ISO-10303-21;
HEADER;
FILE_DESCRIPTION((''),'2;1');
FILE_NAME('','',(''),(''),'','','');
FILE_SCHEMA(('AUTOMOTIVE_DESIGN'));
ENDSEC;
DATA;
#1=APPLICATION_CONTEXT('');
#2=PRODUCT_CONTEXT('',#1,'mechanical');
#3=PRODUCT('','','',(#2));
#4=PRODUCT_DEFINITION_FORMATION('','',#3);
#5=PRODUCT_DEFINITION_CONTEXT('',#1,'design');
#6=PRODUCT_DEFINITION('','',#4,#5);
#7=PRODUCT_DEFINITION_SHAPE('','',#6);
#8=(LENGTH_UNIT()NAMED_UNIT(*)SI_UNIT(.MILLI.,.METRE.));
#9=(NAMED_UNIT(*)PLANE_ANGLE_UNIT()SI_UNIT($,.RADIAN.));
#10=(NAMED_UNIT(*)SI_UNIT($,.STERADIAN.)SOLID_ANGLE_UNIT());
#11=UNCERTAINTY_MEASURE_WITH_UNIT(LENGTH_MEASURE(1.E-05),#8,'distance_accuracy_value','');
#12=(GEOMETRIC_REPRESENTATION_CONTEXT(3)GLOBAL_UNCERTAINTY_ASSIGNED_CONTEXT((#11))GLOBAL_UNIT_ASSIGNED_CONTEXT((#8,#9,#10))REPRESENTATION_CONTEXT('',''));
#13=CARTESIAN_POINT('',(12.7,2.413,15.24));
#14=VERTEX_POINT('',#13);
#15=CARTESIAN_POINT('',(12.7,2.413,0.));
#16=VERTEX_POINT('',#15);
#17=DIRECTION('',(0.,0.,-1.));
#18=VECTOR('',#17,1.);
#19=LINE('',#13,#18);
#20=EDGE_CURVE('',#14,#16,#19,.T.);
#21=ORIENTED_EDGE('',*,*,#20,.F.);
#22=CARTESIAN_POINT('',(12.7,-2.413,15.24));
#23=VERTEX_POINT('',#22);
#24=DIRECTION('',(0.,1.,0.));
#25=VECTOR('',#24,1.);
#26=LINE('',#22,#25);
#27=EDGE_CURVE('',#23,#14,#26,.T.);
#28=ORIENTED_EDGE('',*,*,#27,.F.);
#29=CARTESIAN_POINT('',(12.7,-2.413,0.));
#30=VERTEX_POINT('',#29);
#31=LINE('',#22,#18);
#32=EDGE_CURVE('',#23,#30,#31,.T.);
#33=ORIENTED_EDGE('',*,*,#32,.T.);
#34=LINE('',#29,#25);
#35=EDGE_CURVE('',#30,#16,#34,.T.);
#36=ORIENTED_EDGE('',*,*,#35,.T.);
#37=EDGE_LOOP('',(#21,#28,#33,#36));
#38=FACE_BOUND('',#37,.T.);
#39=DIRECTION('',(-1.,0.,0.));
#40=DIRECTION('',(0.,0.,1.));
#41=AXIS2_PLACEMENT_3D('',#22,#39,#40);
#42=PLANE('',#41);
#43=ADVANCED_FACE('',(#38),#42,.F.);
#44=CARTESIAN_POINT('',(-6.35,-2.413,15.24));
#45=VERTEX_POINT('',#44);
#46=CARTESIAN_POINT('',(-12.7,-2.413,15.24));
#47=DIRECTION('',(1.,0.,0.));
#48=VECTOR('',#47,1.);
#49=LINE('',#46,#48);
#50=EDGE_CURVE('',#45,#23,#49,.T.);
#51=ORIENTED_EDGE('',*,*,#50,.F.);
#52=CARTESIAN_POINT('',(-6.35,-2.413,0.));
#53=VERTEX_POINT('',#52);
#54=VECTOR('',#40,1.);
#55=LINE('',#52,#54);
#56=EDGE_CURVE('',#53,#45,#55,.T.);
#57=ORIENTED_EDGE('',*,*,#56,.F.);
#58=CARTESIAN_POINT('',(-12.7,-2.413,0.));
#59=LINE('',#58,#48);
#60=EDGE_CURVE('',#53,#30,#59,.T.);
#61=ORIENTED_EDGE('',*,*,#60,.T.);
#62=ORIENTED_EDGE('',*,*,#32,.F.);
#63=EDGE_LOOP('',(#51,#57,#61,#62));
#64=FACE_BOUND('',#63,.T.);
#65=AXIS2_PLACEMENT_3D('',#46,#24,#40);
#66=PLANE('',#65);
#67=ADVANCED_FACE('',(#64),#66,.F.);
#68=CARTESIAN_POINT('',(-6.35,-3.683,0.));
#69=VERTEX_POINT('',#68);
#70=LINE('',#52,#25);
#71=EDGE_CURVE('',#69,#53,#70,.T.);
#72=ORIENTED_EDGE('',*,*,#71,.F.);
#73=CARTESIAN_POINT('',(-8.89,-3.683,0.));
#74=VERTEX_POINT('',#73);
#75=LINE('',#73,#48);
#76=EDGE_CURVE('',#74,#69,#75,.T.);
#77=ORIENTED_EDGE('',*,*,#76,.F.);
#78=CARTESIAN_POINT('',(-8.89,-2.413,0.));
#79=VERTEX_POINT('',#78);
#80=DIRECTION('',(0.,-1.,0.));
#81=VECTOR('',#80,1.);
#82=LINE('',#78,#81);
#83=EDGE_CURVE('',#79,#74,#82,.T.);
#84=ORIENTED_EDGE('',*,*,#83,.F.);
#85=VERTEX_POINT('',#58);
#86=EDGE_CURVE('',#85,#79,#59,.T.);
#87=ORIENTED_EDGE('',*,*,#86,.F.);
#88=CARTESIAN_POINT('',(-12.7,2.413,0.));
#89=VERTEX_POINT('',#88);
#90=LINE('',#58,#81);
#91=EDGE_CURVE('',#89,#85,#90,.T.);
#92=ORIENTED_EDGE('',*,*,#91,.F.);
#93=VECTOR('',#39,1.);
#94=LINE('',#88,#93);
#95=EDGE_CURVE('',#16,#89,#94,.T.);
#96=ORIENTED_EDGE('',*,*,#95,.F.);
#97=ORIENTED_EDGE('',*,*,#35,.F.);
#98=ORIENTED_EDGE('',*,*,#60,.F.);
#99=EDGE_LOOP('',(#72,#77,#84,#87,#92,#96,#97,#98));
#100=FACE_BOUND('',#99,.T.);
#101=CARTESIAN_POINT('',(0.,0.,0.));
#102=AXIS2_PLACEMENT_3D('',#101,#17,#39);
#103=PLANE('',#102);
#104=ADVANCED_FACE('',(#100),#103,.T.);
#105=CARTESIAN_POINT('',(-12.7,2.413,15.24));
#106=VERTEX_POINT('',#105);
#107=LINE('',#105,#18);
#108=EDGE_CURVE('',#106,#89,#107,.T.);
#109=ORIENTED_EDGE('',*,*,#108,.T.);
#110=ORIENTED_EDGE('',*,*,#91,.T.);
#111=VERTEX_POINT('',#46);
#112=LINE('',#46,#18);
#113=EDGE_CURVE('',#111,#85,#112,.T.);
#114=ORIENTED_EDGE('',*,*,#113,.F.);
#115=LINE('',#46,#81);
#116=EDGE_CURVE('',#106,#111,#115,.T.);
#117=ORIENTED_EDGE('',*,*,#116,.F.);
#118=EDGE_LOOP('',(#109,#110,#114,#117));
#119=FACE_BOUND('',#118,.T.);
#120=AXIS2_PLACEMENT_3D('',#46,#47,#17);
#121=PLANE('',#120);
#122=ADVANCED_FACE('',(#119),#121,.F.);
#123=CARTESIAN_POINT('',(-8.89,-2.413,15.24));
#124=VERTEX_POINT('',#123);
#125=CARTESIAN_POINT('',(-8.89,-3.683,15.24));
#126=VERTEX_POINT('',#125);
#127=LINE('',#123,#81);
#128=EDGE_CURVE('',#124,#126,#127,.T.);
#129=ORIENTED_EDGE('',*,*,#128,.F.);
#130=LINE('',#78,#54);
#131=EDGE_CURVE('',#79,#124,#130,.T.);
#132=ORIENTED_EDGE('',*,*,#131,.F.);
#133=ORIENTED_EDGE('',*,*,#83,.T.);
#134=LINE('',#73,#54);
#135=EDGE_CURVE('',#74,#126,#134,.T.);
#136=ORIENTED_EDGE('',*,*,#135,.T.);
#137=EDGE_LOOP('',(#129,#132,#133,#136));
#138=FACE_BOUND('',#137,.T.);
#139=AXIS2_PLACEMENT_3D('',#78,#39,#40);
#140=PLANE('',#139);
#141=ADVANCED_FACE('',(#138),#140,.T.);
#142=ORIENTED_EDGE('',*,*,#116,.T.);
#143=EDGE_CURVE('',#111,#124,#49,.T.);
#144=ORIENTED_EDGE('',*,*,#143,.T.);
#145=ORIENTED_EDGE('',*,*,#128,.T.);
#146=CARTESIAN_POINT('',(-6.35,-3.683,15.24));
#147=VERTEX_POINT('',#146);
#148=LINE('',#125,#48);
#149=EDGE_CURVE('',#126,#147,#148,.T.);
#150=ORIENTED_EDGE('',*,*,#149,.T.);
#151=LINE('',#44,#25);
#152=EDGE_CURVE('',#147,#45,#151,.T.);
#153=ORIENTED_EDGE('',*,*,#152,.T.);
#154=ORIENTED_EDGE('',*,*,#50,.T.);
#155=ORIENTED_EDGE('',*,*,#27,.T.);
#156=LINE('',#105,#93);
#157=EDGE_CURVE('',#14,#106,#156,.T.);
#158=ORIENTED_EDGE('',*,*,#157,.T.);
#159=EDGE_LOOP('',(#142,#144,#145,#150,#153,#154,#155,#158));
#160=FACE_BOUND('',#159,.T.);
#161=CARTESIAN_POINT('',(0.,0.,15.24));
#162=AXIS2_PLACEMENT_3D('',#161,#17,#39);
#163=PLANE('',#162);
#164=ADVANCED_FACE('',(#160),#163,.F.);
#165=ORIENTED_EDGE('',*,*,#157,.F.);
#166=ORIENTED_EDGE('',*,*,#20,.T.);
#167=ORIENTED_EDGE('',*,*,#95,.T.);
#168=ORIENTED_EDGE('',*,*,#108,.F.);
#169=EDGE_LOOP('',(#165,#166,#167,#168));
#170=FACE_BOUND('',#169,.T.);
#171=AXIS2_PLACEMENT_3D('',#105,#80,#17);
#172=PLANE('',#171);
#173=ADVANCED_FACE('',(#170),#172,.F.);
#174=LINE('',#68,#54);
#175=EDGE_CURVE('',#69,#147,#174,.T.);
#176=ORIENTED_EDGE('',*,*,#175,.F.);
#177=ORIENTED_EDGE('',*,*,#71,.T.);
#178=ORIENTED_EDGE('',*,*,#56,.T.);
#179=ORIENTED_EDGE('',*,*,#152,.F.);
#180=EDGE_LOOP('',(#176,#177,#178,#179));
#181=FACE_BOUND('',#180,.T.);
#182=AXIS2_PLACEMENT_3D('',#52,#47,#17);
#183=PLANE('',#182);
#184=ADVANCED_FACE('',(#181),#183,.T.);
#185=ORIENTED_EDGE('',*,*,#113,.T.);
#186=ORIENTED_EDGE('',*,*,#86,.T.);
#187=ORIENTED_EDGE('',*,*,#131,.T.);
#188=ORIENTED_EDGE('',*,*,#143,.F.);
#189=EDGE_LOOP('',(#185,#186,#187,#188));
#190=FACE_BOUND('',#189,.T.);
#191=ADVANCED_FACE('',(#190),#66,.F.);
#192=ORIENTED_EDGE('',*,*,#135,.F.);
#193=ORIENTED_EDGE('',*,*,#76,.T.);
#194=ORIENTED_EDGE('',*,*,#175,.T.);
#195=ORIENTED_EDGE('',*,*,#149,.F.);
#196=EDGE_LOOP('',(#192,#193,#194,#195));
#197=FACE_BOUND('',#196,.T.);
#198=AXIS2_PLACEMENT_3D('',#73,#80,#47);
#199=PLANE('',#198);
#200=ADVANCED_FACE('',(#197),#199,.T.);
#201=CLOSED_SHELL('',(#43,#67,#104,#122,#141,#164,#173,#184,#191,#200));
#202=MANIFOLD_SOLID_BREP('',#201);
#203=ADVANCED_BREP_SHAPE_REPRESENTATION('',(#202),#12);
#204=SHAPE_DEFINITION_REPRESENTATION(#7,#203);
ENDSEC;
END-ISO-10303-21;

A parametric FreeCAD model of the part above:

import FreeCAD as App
import Part
import Sketcher
from FreeCAD import Vector
Q = App.Units.Quantity

doc = App.newDocument("Part")
body = doc.addObject("PartDesign::Body", "Body")

# Sketch on XY plane
sketch1 = body.newObject("Sketcher::SketchObject", "Sketch")
sketch1.AttachmentSupport = (doc.getObject("XY_Plane"), [""])
sketch1.MapMode = "FlatFace"
sketch1.addGeometry(Part.LineSegment(Vector(-12.7, 2.4, 0), Vector(-12.7, -2.4, 0)), False)
sketch1.addGeometry(Part.LineSegment(Vector(-12.7, -2.4, 0), Vector(12.7, -2.4, 0)), False)
sketch1.addGeometry(Part.LineSegment(Vector(12.7, -2.4, 0), Vector(12.7, 2.4, 0)), False)
sketch1.addGeometry(Part.LineSegment(Vector(12.7, 2.4, 0), Vector(-12.7, 2.4, 0)), False)
sketch1.addConstraint(Sketcher.Constraint("Coincident", 0, 2, 1, 1))
sketch1.addConstraint(Sketcher.Constraint("Coincident", 1, 2, 2, 1))
sketch1.addConstraint(Sketcher.Constraint("Coincident", 2, 2, 3, 1))
sketch1.addConstraint(Sketcher.Constraint("Coincident", 3, 2, 0, 1))
sketch1.addConstraint(Sketcher.Constraint("Vertical", 0))
sketch1.addConstraint(Sketcher.Constraint("Horizontal", 1))
sketch1.addConstraint(Sketcher.Constraint("Vertical", 2))
sketch1.addConstraint(Sketcher.Constraint("Horizontal", 3))
sketch1.addConstraint(Sketcher.Constraint("Symmetric", 0, 2, 2, 2, -1, 1))
sketch1.addConstraint(Sketcher.Constraint("DistanceX", 1, 1, 1, 2, Q("1 in")))
sketch1.addConstraint(Sketcher.Constraint("DistanceY", 0, 2, 0, 1, Q("0.19 in")))
pad1 = body.newObject("PartDesign::Pad", "Pad")
pad1.Profile = sketch1
pad1.Length = Q("0.6 in")

# Sketch on XY plane
sketch2 = body.newObject("Sketcher::SketchObject", "Sketch001")
sketch2.AttachmentSupport = (doc.getObject("XY_Plane"), [""])
sketch2.MapMode = "FlatFace"
sketch2.AttachmentOffset = App.Placement(Vector(0, 0, 0.6 * 25.4), App.Rotation())
sketch2.addGeometry(Part.LineSegment(Vector(-8.9, -2.4, 0), Vector(-8.9, -3.7, 0)), False)
sketch2.addGeometry(Part.LineSegment(Vector(-8.9, -3.7, 0), Vector(-6.3, -3.7, 0)), False)
sketch2.addGeometry(Part.LineSegment(Vector(-6.3, -3.7, 0), Vector(-6.3, -2.4, 0)), False)
sketch2.addGeometry(Part.LineSegment(Vector(-6.3, -2.4, 0), Vector(-8.9, -2.4, 0)), False)
sketch2.addConstraint(Sketcher.Constraint("Coincident", 0, 2, 1, 1))
sketch2.addConstraint(Sketcher.Constraint("Coincident", 1, 2, 2, 1))
sketch2.addConstraint(Sketcher.Constraint("Coincident", 2, 2, 3, 1))
sketch2.addConstraint(Sketcher.Constraint("Coincident", 3, 2, 0, 1))
sketch2.addConstraint(Sketcher.Constraint("Vertical", 0))
sketch2.addConstraint(Sketcher.Constraint("Horizontal", 1))
sketch2.addConstraint(Sketcher.Constraint("Vertical", 2))
sketch2.addConstraint(Sketcher.Constraint("Horizontal", 3))
sketch2.addConstraint(Sketcher.Constraint("DistanceX", 1, 1, 1, 2, Q("0.1 in")))
sketch2.addConstraint(Sketcher.Constraint("DistanceY", 0, 2, 0, 1, Q("0.05 in")))
sketch2.addConstraint(Sketcher.Constraint("DistanceX", 0, 2, -1, 1, Q("0.35 in")))
sketch2.addConstraint(Sketcher.Constraint("DistanceY", 0, 2, -1, 1, Q("0.145 in")))
pad2 = body.newObject("PartDesign::Pad", "Pad001")
pad2.Profile = sketch2
pad2.Length = Q("0.6 in")
pad2.Reversed = True

doc.recompute()
